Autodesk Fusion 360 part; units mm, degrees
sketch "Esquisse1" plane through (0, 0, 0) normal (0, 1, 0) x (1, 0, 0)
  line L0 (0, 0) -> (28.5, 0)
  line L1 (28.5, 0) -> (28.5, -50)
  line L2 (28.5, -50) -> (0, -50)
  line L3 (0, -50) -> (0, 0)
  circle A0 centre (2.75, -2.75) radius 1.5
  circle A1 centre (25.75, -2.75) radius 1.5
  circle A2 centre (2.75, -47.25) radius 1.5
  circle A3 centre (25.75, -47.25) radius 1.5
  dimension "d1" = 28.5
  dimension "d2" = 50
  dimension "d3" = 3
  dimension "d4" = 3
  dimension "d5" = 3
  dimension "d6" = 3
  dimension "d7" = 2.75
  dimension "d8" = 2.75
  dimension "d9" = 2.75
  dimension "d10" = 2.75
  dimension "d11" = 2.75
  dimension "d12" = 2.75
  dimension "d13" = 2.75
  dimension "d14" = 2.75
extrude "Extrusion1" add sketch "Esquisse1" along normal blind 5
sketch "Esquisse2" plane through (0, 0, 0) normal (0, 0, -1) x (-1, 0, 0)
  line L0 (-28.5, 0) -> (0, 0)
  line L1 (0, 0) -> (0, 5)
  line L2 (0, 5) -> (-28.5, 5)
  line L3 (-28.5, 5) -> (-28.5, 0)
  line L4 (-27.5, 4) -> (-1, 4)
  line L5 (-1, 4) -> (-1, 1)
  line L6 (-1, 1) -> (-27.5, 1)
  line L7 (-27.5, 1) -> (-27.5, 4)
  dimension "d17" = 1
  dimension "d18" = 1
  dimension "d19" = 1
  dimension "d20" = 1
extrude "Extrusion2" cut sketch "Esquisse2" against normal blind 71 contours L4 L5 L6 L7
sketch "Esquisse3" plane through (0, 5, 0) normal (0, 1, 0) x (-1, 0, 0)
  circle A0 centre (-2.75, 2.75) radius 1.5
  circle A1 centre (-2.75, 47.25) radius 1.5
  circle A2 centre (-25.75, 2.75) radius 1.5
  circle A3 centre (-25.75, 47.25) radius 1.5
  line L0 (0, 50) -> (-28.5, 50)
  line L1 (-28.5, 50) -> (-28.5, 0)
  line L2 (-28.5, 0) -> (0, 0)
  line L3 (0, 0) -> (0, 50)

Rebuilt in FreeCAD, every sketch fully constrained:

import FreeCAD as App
import Part
import Sketcher
from FreeCAD import Vector


def add_polygon(sketch, points):
    """Adds a closed chain of lines whose ends are joined by coincident constraints."""
    first, n = sketch.GeometryCount, len(points)
    for a, b in zip(points, points[1:] + points[:1]):
        sketch.addGeometry(Part.LineSegment(App.Vector(*a, 0), App.Vector(*b, 0)), False)
    for i in range(n):
        sketch.addConstraint(Sketcher.Constraint("Coincident", first + i, 2, first + (i + 1) % n, 1))

doc = App.newDocument("Part")
body = doc.addObject("PartDesign::Body", "Body")

sketch1 = doc.addObject("Sketcher::SketchObject", "Sketch")
body.addObject(sketch1)
sketch1.AttachmentSupport = (doc.XZ_Plane, [""])
sketch1.MapMode = "FlatFace"
add_polygon(sketch1, [(28.5, 0), (0, 0), (0, 50), (28.5, 50)])
sketch1.addGeometry(Part.Circle(Vector(2.8, 47.2, 0), Vector(0, 0, 1), 1.5), False)
sketch1.addGeometry(Part.Circle(Vector(25.8, 47.2, 0), Vector(0, 0, 1), 1.5), False)
sketch1.addGeometry(Part.Circle(Vector(2.8, 2.8, 0), Vector(0, 0, 1), 1.5), False)
sketch1.addGeometry(Part.Circle(Vector(25.8, 2.8, 0), Vector(0, 0, 1), 1.5), False)
sketch1.addConstraint([
    Sketcher.Constraint("Horizontal", 0),
    Sketcher.Constraint("Vertical", 1),
    Sketcher.Constraint("Horizontal", 2),
    Sketcher.Constraint("Vertical", 3),
    Sketcher.Constraint("Coincident", 0, 2, -1, 1),
    Sketcher.Constraint("Equal", 4, 5),
    Sketcher.Constraint("Equal", 5, 6),
    Sketcher.Constraint("Equal", 6, 7),
    Sketcher.Constraint("Horizontal", 4, 3, 5, 3),
    Sketcher.Constraint("Horizontal", 6, 3, 7, 3),
    Sketcher.Constraint("Vertical", 4, 3, 6, 3),
    Sketcher.Constraint("Vertical", 5, 3, 7, 3),
    Sketcher.Constraint("Diameter", 4, 3.0),
    Sketcher.Constraint("DistanceY", 1, 1, 1, 2, 50.0),
    Sketcher.Constraint("DistanceX", 0, 2, 0, 1, 28.5),
    Sketcher.Constraint("DistanceX", -1, 1, 4, 3, 2.75),
    Sketcher.Constraint("DistanceY", -1, 1, 6, 3, 2.75),
    Sketcher.Constraint("DistanceY", 4, 3, 1, 2, 2.75),
    Sketcher.Constraint("DistanceX", 5, 3, 2, 2, 2.75),
])
pad1 = doc.addObject("PartDesign::Pad", "Pad")
body.addObject(pad1)
pad1.Profile = sketch1
pad1.Length = 5
pad1.Reversed = True

sketch2 = doc.addObject("Sketcher::SketchObject", "Sketch001")
body.addObject(sketch2)
sketch2.AttachmentSupport = (doc.XY_Plane, [""])
sketch2.MapMode = "FlatFace"
add_polygon(sketch2, [(1, 4), (27.5, 4), (27.5, 1), (1, 1)])
sketch2.addConstraint([
    Sketcher.Constraint("Horizontal", 0),
    Sketcher.Constraint("Vertical", 1),
    Sketcher.Constraint("Horizontal", 2),
    Sketcher.Constraint("Vertical", 3),
    Sketcher.Constraint("DistanceY", -1, 1, 1, 2, 1.0),
    Sketcher.Constraint("DistanceX", -1, 1, 2, 2, 1.0),
    Sketcher.Constraint("DistanceY", 1, 2, 1, 1, 3.0),
    Sketcher.Constraint("DistanceX", 0, 1, 0, 2, 26.5),
])
pocket1 = doc.addObject("PartDesign::Pocket", "Pocket")
body.addObject(pocket1)
pocket1.Profile = sketch2
pocket1.Length = 71
pocket1.Reversed = True

doc.recompute()
